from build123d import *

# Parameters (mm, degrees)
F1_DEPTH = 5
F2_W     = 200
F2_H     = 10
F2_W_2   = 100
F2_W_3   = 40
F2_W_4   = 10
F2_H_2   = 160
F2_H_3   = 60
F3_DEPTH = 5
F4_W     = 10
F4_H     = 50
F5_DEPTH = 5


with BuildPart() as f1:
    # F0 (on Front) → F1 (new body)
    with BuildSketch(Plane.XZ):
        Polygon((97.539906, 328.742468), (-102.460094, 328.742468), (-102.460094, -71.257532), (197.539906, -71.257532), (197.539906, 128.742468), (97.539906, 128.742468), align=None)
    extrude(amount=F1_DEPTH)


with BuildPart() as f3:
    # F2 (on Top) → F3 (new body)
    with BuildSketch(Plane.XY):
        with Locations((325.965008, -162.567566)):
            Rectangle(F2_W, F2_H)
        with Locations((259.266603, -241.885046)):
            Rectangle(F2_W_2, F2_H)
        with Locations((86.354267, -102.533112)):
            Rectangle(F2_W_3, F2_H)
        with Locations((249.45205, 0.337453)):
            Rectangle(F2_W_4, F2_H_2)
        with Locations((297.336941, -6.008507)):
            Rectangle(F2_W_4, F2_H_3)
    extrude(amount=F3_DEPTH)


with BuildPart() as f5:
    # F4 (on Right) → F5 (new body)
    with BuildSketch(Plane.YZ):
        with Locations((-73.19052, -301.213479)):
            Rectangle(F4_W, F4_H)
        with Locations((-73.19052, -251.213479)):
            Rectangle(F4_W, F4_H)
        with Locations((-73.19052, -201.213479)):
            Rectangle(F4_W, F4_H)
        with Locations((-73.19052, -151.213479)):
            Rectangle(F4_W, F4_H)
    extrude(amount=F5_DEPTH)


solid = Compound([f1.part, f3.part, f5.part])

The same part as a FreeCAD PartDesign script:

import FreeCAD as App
import Part
import Sketcher

V = App.Vector


def add_polygon(sketch, points):
    """Adds a closed chain of lines whose ends are joined by coincident constraints."""
    first, n = sketch.GeometryCount, len(points)
    for a, b in zip(points, points[1:] + points[:1]):
        sketch.addGeometry(Part.LineSegment(App.Vector(*a, 0), App.Vector(*b, 0)), False)
    for i in range(n):
        sketch.addConstraint(Sketcher.Constraint("Coincident", first + i, 2, first + (i + 1) % n, 1))

doc = App.newDocument("Part")
params = doc.addObject("Spreadsheet::Sheet", "Params")
for row, (alias, value) in enumerate([
    ("sketch1_width", "200 mm"),
    ("sketch1_width2", "300 mm"),
    ("pad1_length", "5 mm"),
    ("sketch2_width", "200 mm"),
    ("sketch2_width2", "100 mm"),
    ("sketch2_width3", "40 mm"),
    ("sketch2_width4", "10 mm"),
    ("sketch2_height", "160 mm"),
    ("pad2_length", "5 mm"),
    ("sketch3_width", "10 mm"),
    ("sketch3_height", "200 mm"),
    ("pad3_length", "5 mm"),
], start=1):
    params.set(f"A{row}", alias)
    params.set(f"B{row}", "=" + value)
    params.setAlias(f"B{row}", alias)

body = doc.addObject("PartDesign::Body", "Body")

# Sketch on XZ plane
sketch1 = doc.addObject("Sketcher::SketchObject", "Sketch")
body.addObject(sketch1)
sketch1.AttachmentSupport = (doc.XZ_Plane, [""])
sketch1.MapMode = "FlatFace"
add_polygon(sketch1, [(97.539906, 328.742468), (-102.460094, 328.742468), (-102.460094, -71.257532), (197.539906, -71.257532), (197.539906, 128.742468), (97.539906, 128.742468)])  # lines 0-5
sketch1.addConstraint([
    Sketcher.Constraint("Horizontal", 0),
    Sketcher.Constraint("Vertical", 1),
    Sketcher.Constraint("Horizontal", 2),
    Sketcher.Constraint("Vertical", 3),
    Sketcher.Constraint("Horizontal", 4),
    Sketcher.Constraint("Vertical", 5),
    Sketcher.Constraint("Equal", 0, 3),
    Sketcher.Constraint("Equal", 3, 5),
    Sketcher.Constraint("DistanceX", 0, 2, 0, 1, 200.0),
    Sketcher.Constraint("DistanceX", 2, 1, 2, 2, 300.0),
    Sketcher.Constraint("DistanceY", 1, 2, -1, 1, 71.257532),
    Sketcher.Constraint("DistanceX", 0, 2, -1, 1, 102.460094),
])
sketch1.setExpression("Constraints[14]", "Params.sketch1_width")
sketch1.setExpression("Constraints[15]", "Params.sketch1_width2")
pad1 = doc.addObject("PartDesign::Pad", "Pad")
body.addObject(pad1)
pad1.Profile = sketch1
pad1.setExpression("Length", "Params.pad1_length")
body2 = doc.addObject("PartDesign::Body", "Body001")
body2.AllowCompound = True

# Sketch on XY plane
sketch2 = doc.addObject("Sketcher::SketchObject", "Sketch001")
body2.addObject(sketch2)
sketch2.AttachmentSupport = (doc.getObject("XY_Plane001"), [""])
sketch2.MapMode = "FlatFace"
add_polygon(sketch2, [(225.965008, -157.567566), (225.965008, -167.567566), (425.965008, -167.567566), (425.965008, -157.567566)])  # lines 0-3
add_polygon(sketch2, [(209.266603, -236.885046), (209.266603, -246.885046), (309.266603, -246.885046), (309.266603, -236.885046)])  # lines 4-7
add_polygon(sketch2, [(66.354267, -97.533112), (66.354267, -107.533112), (106.354267, -107.533112), (106.354267, -97.533112)])  # lines 8-11
add_polygon(sketch2, [(244.45205, 80.337453), (244.45205, -79.662547), (254.45205, -79.662547), (254.45205, 80.337453)])  # lines 12-15
add_polygon(sketch2, [(292.336941, 23.991493), (292.336941, -36.008507), (302.336941, -36.008507), (302.336941, 23.991493)])  # lines 16-19
sketch2.addConstraint([
    Sketcher.Constraint("Vertical", 0),
    Sketcher.Constraint("Horizontal", 1),
    Sketcher.Constraint("Vertical", 2),
    Sketcher.Constraint("Horizontal", 3),
    Sketcher.Constraint("Vertical", 4),
    Sketcher.Constraint("Horizontal", 5),
    Sketcher.Constraint("Vertical", 6),
    Sketcher.Constraint("Horizontal", 7),
    Sketcher.Constraint("Vertical", 8),
    Sketcher.Constraint("Horizontal", 9),
    Sketcher.Constraint("Vertical", 10),
    Sketcher.Constraint("Horizontal", 11),
    Sketcher.Constraint("Vertical", 12),
    Sketcher.Constraint("Horizontal", 13),
    Sketcher.Constraint("Vertical", 14),
    Sketcher.Constraint("Horizontal", 15),
    Sketcher.Constraint("Vertical", 16),
    Sketcher.Constraint("Horizontal", 17),
    Sketcher.Constraint("Vertical", 18),
    Sketcher.Constraint("Horizontal", 19),
    Sketcher.Constraint("Equal", 15, 17),
    Sketcher.Constraint("Equal", 19, 0),
    Sketcher.Constraint("Equal", 2, 4),
    Sketcher.Constraint("Equal", 6, 8),
    Sketcher.Constraint("DistanceX", 1, 1, 1, 2, 200.0),
    Sketcher.Constraint("DistanceX", 5, 1, 5, 2, 100.0),
    Sketcher.Constraint("DistanceX", 9, 1, 9, 2, 40.0),
    Sketcher.Constraint("DistanceX", 13, 1, 13, 2, 10.0),
    Sketcher.Constraint("DistanceY", 12, 2, 12, 1, 160.0),
    Sketcher.Constraint("DistanceY", 16, 2, 16, 1, 60.0),
    Sketcher.Constraint("DistanceY", 7, 2, 12, 2, 157.222499),
    Sketcher.Constraint("DistanceX", -1, 1, 0, 2, 225.965008),
    Sketcher.Constraint("DistanceX", -1, 1, 12, 2, 244.45205),
    Sketcher.Constraint("DistanceX", -1, 1, 16, 2, 292.336941),
    Sketcher.Constraint("DistanceY", 4, 2, 0, 2, 79.31748),
    Sketcher.Constraint("DistanceX", 8, 2, 3, 2, 159.610741),
    Sketcher.Constraint("DistanceY", 13, 2, 16, 2, 43.65404),
    Sketcher.Constraint("DistanceY", 0, 2, -1, 1, 167.567566),
    Sketcher.Constraint("DistanceX", -1, 1, 4, 2, 209.266603),
    Sketcher.Constraint("DistanceY", 8, 2, -1, 1, 107.533112),
])
sketch2.setExpression("Constraints[44]", "Params.sketch2_width")
sketch2.setExpression("Constraints[45]", "Params.sketch2_width2")
sketch2.setExpression("Constraints[46]", "Params.sketch2_width3")
sketch2.setExpression("Constraints[47]", "Params.sketch2_width4")
sketch2.setExpression("Constraints[48]", "Params.sketch2_height")
pad2 = doc.addObject("PartDesign::Pad", "Pad001")
body2.addObject(pad2)
pad2.Profile = sketch2
pad2.setExpression("Length", "Params.pad2_length")
body3 = doc.addObject("PartDesign::Body", "Body002")

# Sketch on YZ plane
sketch3 = doc.addObject("Sketcher::SketchObject", "Sketch002")
body3.addObject(sketch3)
sketch3.AttachmentSupport = (doc.getObject("YZ_Plane002"), [""])
sketch3.MapMode = "FlatFace"
add_polygon(sketch3, [(-78.19052, -326.213479), (-68.19052, -326.213479), (-68.19052, -126.213479), (-78.19052, -126.213479)])  # lines 0-3
sketch3.addConstraint([
    Sketcher.Constraint("Horizontal", 0),
    Sketcher.Constraint("Vertical", 1),
    Sketcher.Constraint("Horizontal", 2),
    Sketcher.Constraint("Vertical", 3),
    Sketcher.Constraint("DistanceX", 0, 1, 0, 2, 10.0),
    Sketcher.Constraint("DistanceY", 1, 1, 1, 2, 200.0),
    Sketcher.Constraint("DistanceX", 0, 2, -1, 1, 68.19052),
    Sketcher.Constraint("DistanceY", 0, 2, -1, 1, 326.213479),
])
sketch3.setExpression("Constraints[8]", "Params.sketch3_width")
sketch3.setExpression("Constraints[9]", "Params.sketch3_height")
pad3 = doc.addObject("PartDesign::Pad", "Pad002")
body3.addObject(pad3)
pad3.Profile = sketch3
pad3.setExpression("Length", "Params.pad3_length")

doc.recompute()
